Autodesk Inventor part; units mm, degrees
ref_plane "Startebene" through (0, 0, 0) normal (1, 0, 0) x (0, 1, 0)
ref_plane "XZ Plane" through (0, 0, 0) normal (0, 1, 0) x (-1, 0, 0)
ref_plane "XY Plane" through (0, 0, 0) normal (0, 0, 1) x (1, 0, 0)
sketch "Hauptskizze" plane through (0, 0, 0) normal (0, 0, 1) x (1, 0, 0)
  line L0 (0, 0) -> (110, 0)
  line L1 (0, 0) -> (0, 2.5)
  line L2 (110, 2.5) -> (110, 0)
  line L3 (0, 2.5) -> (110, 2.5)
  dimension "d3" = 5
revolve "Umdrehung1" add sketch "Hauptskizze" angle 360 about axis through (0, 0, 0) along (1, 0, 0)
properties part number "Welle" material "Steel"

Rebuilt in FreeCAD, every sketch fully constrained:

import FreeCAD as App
import Part
import Sketcher
from FreeCAD import Vector

doc = App.newDocument("Part")
body = doc.addObject("PartDesign::Body", "Body")

sketch1 = body.newObject("Sketcher::SketchObject", "Sketch")
sketch1.AttachmentSupport = (doc.getObject("XY_Plane"), [""])
sketch1.MapMode = "FlatFace"
sketch1.addGeometry(Part.LineSegment(Vector(0, 2.5, 0), Vector(0, 0, 0)), False)
sketch1.addGeometry(Part.LineSegment(Vector(0, 0, 0), Vector(110, 0, 0)), False)
sketch1.addGeometry(Part.LineSegment(Vector(110, 0, 0), Vector(110, 2.5, 0)), False)
sketch1.addGeometry(Part.LineSegment(Vector(110, 2.5, 0), Vector(0, 2.5, 0)), False)
sketch1.addConstraint(Sketcher.Constraint("Coincident", 0, 2, 1, 1))
sketch1.addConstraint(Sketcher.Constraint("Coincident", 1, 2, 2, 1))
sketch1.addConstraint(Sketcher.Constraint("Coincident", 2, 2, 3, 1))
sketch1.addConstraint(Sketcher.Constraint("Coincident", 3, 2, 0, 1))
sketch1.addConstraint(Sketcher.Constraint("Vertical", 0))
sketch1.addConstraint(Sketcher.Constraint("Horizontal", 1))
sketch1.addConstraint(Sketcher.Constraint("Vertical", 2))
sketch1.addConstraint(Sketcher.Constraint("Horizontal", 3))
sketch1.addConstraint(Sketcher.Constraint("Coincident", 0, 2, -1, 1))
sketch1.addConstraint(Sketcher.Constraint("DistanceX", 1, 1, 1, 2, 110.0))
sketch1.addConstraint(Sketcher.Constraint("DistanceY", 0, 2, 0, 1, 2.5))
revolution = body.newObject("PartDesign::Revolution", "Revolution")
revolution.Profile = sketch1
revolution.ReferenceAxis = (sketch1, ["H_Axis"])
revolution.Angle = 360

doc.recompute()
